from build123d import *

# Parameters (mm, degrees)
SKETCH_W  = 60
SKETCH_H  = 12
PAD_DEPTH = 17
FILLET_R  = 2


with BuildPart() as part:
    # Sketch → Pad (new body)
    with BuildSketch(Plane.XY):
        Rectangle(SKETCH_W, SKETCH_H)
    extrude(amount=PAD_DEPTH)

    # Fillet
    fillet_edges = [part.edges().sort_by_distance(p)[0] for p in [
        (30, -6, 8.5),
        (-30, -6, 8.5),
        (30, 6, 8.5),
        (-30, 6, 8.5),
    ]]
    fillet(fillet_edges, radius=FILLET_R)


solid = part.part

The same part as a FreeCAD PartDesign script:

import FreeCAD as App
import Part
import Sketcher

V = App.Vector
Q = App.Units.Quantity


def edges_at(feature, points):
    """Names of the edges that pass closest to the given points."""
    edges = feature.Shape.Edges
    near = lambda p: min(range(len(edges)), key=lambda i: edges[i].distToShape(Part.Vertex(*p))[0])
    return sorted({f"Edge{near(p) + 1}" for p in points})


def add_polygon(sketch, points):
    """Adds a closed chain of lines whose ends are joined by coincident constraints."""
    first, n = sketch.GeometryCount, len(points)
    for a, b in zip(points, points[1:] + points[:1]):
        sketch.addGeometry(Part.LineSegment(App.Vector(*a, 0), App.Vector(*b, 0)), False)
    for i in range(n):
        sketch.addConstraint(Sketcher.Constraint("Coincident", first + i, 2, first + (i + 1) % n, 1))

doc = App.newDocument("Part")
body = doc.addObject("PartDesign::Body", "Body")

# Sketch on XY plane
sketch1 = body.newObject("Sketcher::SketchObject", "Sketch")
sketch1.AttachmentSupport = (doc.getObject("XY_Plane"), [""])
sketch1.MapMode = "FlatFace"
add_polygon(sketch1, [(-30, 6), (-30, -6), (30, -6), (30, 6)])  # lines 0-3
sketch1.addConstraint(Sketcher.Constraint("Vertical", 0))
sketch1.addConstraint(Sketcher.Constraint("Horizontal", 1))
sketch1.addConstraint(Sketcher.Constraint("Vertical", 2))
sketch1.addConstraint(Sketcher.Constraint("Horizontal", 3))
sketch1.addConstraint(Sketcher.Constraint("Symmetric", 0, 2, 2, 2, -1, 1))
sketch1.addConstraint(Sketcher.Constraint("DistanceX", 1, 1, 1, 2, Q("60 mm")))
sketch1.addConstraint(Sketcher.Constraint("DistanceY", 0, 2, 0, 1, Q("12 mm")))
pad1 = body.newObject("PartDesign::Pad", "Pad")
pad1.Profile = sketch1
pad1.Length = 17
doc.recompute()

fillet = body.newObject("PartDesign::Fillet", "Fillet")
fillet.Base = (pad1, edges_at(pad1, [
    (30, -6, 8.5),
    (-30, -6, 8.5),
    (30, 6, 8.5),
    (-30, 6, 8.5),
]))
fillet.Radius = 2

doc.recompute()
